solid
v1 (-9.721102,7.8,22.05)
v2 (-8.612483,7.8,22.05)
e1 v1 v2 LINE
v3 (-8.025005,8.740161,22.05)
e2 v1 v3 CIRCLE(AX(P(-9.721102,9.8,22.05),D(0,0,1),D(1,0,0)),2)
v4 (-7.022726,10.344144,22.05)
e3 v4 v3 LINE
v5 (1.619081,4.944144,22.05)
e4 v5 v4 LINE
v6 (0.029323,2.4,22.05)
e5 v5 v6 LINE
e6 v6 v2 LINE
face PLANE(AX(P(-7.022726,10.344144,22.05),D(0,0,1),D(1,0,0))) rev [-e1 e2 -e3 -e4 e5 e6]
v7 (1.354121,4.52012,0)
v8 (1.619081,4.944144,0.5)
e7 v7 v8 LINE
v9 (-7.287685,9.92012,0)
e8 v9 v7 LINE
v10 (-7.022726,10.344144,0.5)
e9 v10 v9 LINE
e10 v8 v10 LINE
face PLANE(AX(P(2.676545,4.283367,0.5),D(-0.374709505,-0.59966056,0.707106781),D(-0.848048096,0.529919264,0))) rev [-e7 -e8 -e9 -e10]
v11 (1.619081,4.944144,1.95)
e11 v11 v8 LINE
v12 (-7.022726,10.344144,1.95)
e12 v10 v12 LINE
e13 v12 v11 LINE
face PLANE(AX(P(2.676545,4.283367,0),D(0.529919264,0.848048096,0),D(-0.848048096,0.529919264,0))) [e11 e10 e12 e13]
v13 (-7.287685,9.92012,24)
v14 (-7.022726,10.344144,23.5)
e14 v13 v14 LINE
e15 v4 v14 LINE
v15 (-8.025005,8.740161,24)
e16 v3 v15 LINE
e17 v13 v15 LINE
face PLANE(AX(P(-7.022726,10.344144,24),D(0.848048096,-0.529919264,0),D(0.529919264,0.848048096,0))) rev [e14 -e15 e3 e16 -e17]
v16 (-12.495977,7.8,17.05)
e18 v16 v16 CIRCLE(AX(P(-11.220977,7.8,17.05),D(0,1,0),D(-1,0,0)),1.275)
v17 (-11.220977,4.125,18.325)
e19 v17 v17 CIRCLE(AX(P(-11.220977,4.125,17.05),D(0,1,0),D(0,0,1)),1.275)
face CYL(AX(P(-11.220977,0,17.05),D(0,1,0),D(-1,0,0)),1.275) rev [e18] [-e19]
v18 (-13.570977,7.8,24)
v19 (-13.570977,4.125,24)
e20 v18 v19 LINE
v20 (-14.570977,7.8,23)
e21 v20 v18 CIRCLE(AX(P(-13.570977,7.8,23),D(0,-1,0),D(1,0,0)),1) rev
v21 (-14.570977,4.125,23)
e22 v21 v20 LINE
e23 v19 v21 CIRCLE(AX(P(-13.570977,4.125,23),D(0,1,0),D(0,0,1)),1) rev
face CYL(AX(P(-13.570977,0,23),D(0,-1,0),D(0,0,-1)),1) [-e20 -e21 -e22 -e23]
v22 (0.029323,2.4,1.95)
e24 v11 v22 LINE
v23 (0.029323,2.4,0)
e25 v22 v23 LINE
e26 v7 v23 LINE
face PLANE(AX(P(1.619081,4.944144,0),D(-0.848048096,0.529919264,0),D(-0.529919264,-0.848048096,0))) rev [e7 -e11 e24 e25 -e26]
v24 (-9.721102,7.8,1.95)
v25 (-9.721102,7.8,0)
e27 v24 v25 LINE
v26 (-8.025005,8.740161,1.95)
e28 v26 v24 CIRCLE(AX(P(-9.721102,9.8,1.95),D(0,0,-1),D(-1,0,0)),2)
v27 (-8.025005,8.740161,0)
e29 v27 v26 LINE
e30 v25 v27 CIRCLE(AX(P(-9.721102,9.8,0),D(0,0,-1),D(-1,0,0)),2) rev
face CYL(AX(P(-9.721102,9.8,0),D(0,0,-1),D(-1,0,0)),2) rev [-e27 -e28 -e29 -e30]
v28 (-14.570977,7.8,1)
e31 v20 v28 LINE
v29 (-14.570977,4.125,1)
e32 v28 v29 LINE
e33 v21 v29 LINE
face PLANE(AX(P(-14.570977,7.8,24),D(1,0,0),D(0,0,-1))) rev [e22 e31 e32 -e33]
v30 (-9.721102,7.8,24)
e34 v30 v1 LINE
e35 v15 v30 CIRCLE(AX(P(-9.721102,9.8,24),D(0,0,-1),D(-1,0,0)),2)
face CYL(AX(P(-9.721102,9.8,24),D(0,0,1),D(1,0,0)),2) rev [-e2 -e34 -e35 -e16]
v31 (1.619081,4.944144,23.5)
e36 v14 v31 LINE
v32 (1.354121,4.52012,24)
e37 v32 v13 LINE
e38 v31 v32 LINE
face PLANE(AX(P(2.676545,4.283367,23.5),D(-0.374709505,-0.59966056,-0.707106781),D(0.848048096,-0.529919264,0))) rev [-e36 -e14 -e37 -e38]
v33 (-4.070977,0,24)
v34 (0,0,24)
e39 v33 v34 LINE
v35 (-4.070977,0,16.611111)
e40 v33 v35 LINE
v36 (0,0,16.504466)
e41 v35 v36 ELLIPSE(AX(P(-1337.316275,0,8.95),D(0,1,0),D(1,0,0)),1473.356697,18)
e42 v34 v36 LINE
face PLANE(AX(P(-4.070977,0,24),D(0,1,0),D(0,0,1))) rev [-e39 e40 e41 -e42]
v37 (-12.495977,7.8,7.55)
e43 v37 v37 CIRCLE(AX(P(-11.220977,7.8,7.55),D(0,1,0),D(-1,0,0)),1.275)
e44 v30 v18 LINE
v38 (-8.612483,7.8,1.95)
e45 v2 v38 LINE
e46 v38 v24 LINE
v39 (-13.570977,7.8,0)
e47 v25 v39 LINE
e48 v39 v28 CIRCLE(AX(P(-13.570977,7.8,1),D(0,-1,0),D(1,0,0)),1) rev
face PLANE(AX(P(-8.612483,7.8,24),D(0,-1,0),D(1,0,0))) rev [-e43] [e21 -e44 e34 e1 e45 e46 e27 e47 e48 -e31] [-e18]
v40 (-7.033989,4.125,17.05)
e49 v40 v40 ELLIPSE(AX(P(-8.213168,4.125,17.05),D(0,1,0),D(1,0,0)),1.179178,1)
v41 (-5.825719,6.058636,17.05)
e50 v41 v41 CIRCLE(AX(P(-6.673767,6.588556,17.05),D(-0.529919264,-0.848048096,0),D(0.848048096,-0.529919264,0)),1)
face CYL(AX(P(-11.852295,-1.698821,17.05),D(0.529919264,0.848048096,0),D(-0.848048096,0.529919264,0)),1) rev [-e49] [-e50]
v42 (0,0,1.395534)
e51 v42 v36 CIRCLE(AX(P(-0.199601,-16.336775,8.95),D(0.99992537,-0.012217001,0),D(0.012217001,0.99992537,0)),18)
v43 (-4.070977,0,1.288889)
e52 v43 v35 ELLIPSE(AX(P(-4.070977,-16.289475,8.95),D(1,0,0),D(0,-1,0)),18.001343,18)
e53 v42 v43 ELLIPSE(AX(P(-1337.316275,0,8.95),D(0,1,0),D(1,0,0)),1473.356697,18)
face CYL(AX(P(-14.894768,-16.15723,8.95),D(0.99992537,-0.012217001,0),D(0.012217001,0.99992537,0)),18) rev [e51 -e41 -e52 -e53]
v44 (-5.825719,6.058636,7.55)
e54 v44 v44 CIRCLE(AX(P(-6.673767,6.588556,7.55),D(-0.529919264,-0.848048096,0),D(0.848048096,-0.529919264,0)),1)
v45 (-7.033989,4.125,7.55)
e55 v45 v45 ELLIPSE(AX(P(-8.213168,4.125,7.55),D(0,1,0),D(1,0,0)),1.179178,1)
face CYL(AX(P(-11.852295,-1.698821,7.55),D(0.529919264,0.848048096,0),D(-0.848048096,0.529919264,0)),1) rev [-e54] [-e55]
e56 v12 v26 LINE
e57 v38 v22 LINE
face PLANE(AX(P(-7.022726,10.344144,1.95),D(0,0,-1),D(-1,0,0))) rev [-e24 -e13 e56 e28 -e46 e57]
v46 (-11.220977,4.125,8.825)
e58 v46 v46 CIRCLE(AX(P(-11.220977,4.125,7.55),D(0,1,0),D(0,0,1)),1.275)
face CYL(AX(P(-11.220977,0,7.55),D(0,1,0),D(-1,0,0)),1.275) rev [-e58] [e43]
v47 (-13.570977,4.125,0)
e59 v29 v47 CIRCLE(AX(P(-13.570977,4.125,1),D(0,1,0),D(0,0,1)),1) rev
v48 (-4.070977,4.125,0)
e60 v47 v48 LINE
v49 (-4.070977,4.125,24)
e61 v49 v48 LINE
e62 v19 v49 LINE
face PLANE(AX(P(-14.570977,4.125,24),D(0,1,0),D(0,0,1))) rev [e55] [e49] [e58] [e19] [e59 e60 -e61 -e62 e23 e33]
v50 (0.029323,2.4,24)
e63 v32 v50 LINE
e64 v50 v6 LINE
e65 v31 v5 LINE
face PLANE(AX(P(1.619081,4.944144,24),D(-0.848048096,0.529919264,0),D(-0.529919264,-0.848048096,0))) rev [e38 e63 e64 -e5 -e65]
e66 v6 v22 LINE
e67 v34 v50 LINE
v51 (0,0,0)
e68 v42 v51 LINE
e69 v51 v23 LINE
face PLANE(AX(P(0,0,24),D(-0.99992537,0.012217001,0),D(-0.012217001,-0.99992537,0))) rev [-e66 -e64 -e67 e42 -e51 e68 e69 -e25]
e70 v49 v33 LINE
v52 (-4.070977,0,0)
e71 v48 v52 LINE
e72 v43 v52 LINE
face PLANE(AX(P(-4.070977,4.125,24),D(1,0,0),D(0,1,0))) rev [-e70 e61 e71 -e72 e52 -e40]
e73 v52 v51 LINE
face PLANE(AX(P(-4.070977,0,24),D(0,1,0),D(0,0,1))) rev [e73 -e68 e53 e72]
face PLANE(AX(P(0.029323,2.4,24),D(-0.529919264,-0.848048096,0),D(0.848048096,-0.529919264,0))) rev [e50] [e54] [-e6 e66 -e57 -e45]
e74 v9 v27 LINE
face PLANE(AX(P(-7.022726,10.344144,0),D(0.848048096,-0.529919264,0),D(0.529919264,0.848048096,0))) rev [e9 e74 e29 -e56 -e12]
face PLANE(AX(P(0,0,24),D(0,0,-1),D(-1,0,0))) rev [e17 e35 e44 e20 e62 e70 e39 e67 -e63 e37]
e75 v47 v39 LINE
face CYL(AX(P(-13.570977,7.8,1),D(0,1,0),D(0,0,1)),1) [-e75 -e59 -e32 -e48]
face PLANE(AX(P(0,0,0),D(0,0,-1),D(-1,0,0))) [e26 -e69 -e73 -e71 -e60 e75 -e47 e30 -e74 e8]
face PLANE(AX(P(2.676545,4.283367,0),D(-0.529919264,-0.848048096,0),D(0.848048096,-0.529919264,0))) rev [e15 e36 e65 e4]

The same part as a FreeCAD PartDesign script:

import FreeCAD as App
import Part
import Sketcher
from FreeCAD import Vector
Q = App.Units.Quantity


def edges_at(feature, points):
    """Names of the edges that pass closest to the given points."""
    edges = feature.Shape.Edges
    near = lambda p: min(range(len(edges)), key=lambda i: edges[i].distToShape(Part.Vertex(*p))[0])
    return sorted({f"Edge{near(p) + 1}" for p in points})

doc = App.newDocument("Part")
body = doc.addObject("PartDesign::Body", "Body")

# Sketch on XY plane
sketch1 = body.newObject("Sketcher::SketchObject", "Sketch")
sketch1.AttachmentSupport = (doc.getObject("XY_Plane"), [""])
sketch1.MapMode = "FlatFace"
sketch1.addGeometry([
    Part.LineSegment(Vector(-14.6, 4.1, 0), Vector(-4.1, 4.1, 0)),  # 0
    Part.LineSegment(Vector(-4.1, 4.1, 0), Vector(-4.1, 0, 0)),  # 1
    Part.LineSegment(Vector(-4.1, 0, 0), Vector(0, 0, 0)),  # 2
    Part.LineSegment(Vector(0, 0, 0), Vector(0, 2.4, 0)),  # 3
    Part.LineSegment(Vector(0, 2.4, 0), Vector(-8.6, 7.8, 0)),  # 4
    Part.LineSegment(Vector(-8.6, 7.8, 0), Vector(-14.6, 7.8, 0)),  # 5
    Part.LineSegment(Vector(-14.6, 7.8, 0), Vector(-14.6, 4.1, 0)),  # 6
], False)
sketch1.addConstraint([
    Sketcher.Constraint("Coincident", 0, 2, 1, 1),
    Sketcher.Constraint("Coincident", 1, 2, 2, 1),
    Sketcher.Constraint("Coincident", 2, 2, 3, 1),
    Sketcher.Constraint("Coincident", 3, 2, 4, 1),
    Sketcher.Constraint("Coincident", 4, 2, 5, 1),
    Sketcher.Constraint("Coincident", 5, 2, 6, 1),
    Sketcher.Constraint("Coincident", 6, 2, 0, 1),
    Sketcher.Constraint("Horizontal", 0),
    Sketcher.Constraint("Vertical", 1),
    Sketcher.Constraint("Horizontal", 2),
    Sketcher.Constraint("Horizontal", 5),
    Sketcher.Constraint("Vertical", 6),
    Sketcher.Constraint("Coincident", 2, 2, -1, 1),
    Sketcher.Constraint("Angle", 4, Q("148 deg")),
    Sketcher.Constraint("DistanceX", 0, 1, 0, 2, Q("10.5 mm")),
    Sketcher.Constraint("Angle", 3, Q("89.3 deg")),
    Sketcher.Constraint("DistanceY", -1, 1, 3, 2, Q("2.4 mm")),
    Sketcher.Constraint("DistanceY", -1, 1, 4, 2, Q("7.8 mm")),
    Sketcher.Constraint("DistanceY", 1, 2, 1, 1, Q("4.125 mm")),
    Sketcher.Constraint("DistanceX", 0, 2, 3, 2, Q("4.1003 mm")),
])
pad1 = body.newObject("PartDesign::Pad", "Pad")
pad1.Profile = sketch1
pad1.Length = 24

# Sketch on an angled plane
sketch2 = body.newObject("Sketcher::SketchObject", "Sketch001")
sketch2.Placement = App.Placement(Vector(1.086787, 1.739223, 0), App.Rotation(Vector(0.848048096, -0.529919264, 0), Vector(0, 0, -0.999999999), Vector(0.529919264, 0.848048096, 0), "ZXY"))
sketch2.addGeometry([
    Part.LineSegment(Vector(-11.4, 0, 0), Vector(-11.4, -1.9, 0)),  # 0
    Part.LineSegment(Vector(-11.4, -1.9, 0), Vector(-1.2, -1.9, 0)),  # 1
    Part.LineSegment(Vector(-1.2, -1.9, 0), Vector(-1.2, 0, 0)),  # 2
    Part.LineSegment(Vector(-1.2, 0, 0), Vector(-11.4, 0, 0)),  # 3
    Part.LineSegment(Vector(-11.4, -22, 0), Vector(-11.4, -24, 0)),  # 4
    Part.LineSegment(Vector(-11.4, -24, 0), Vector(-1.2, -24, 0)),  # 5
    Part.LineSegment(Vector(-1.2, -24, 0), Vector(-1.2, -22, 0)),  # 6
    Part.LineSegment(Vector(-1.2, -22, 0), Vector(-11.4, -22, 0)),  # 7
], False)
sketch2.addConstraint([
    Sketcher.Constraint("Coincident", 0, 2, 1, 1),
    Sketcher.Constraint("Coincident", 1, 2, 2, 1),
    Sketcher.Constraint("Coincident", 2, 2, 3, 1),
    Sketcher.Constraint("Coincident", 3, 2, 0, 1),
    Sketcher.Constraint("Coincident", 4, 2, 5, 1),
    Sketcher.Constraint("Coincident", 5, 2, 6, 1),
    Sketcher.Constraint("Coincident", 6, 2, 7, 1),
    Sketcher.Constraint("Coincident", 7, 2, 4, 1),
    Sketcher.Constraint("Vertical", 0),
    Sketcher.Constraint("Horizontal", 1),
    Sketcher.Constraint("Vertical", 2),
    Sketcher.Constraint("Horizontal", 3),
    Sketcher.Constraint("Vertical", 4),
    Sketcher.Constraint("Horizontal", 5),
    Sketcher.Constraint("Vertical", 6),
    Sketcher.Constraint("Horizontal", 7),
    Sketcher.Constraint("PointOnObject", 2, 2, -1),
    Sketcher.Constraint("Vertical", 3, 2, 4, 2),
    Sketcher.Constraint("Vertical", 2, 2, 5, 2),
    Sketcher.Constraint("Equal", 2, 4),
    Sketcher.Constraint("DistanceY", 4, 2, -1, 1, Q("24 mm")),
    Sketcher.Constraint("DistanceY", 0, 2, 0, 1, Q("1.95 mm")),
    Sketcher.Constraint("DistanceX", 1, 1, 1, 2, Q("10.190232 mm")),
    Sketcher.Constraint("DistanceX", 0, 2, -1, 1, Q("11.43717 mm")),
])
pad2 = body.newObject("PartDesign::Pad", "Pad001")
pad2.Profile = sketch2
pad2.Length = 3

# Sketch on an angled plane
sketch3 = body.newObject("Sketcher::SketchObject", "Sketch002")
sketch3.Placement = App.Placement(Vector(0, 0, 0), App.Rotation(Vector(0, 0, -1), Vector(0.012217001, 0.99992537, 0), Vector(0.99992537, -0.012217001, 0), "ZXY"))
sketch3.addGeometry(Part.Circle(Vector(-9, -16, 0), Vector(0, 0, 1), 18), False)
sketch3.addConstraint([
    Sketcher.Constraint("Diameter", 0, Q("36 mm")),
    Sketcher.Constraint("DistanceX", 0, 3, -1, 1, Q("8.95 mm")),
    Sketcher.Constraint("DistanceY", 0, 3, -1, 1, Q("16.337994 mm")),
])
pocket1 = body.newObject("PartDesign::Pocket", "Pocket")
pocket1.Profile = sketch3
pocket1.Type = "ThroughAll"
doc.recompute()

chamfer = body.newObject("PartDesign::Chamfer", "Chamfer")
chamfer.Base = (pocket1, edges_at(pocket1, [(-2.702, 7.644, 0), (-2.702, 7.644, 24)]))
chamfer.Size = 0.5
doc.recompute()

fillet = body.newObject("PartDesign::Fillet", "Fillet")
fillet.Base = (chamfer, edges_at(chamfer, [(-14.571, 5.963, 24), (-14.571, 5.963, 0)]))
fillet.Radius = 1

# Sketch on XZ plane
sketch4 = body.newObject("Sketcher::SketchObject", "Sketch003")
sketch4.AttachmentSupport = (doc.getObject("XZ_Plane"), [""])
sketch4.MapMode = "FlatFace"
sketch4.AttachmentOffset = App.Placement(Vector(0, 0, -7.8), App.Rotation())
sketch4.addGeometry([
    Part.Circle(Vector(-11.2, 17.1, 0), Vector(0, 0, 1), 1.3),
    Part.Circle(Vector(-11.2, 7.5, 0), Vector(0, 0, 1), 1.3),
], False)
sketch4.addConstraint([
    Sketcher.Constraint("Equal", 0, 1),
    Sketcher.Constraint("Vertical", 0, 3, 1, 3),
    Sketcher.Constraint("Diameter", 0, Q("2.55 mm")),
    Sketcher.Constraint("DistanceY", 1, 3, 0, 3, Q("9.5 mm")),
    Sketcher.Constraint("DistanceY", -1, 1, 0, 3, Q("17.05 mm")),
    Sketcher.Constraint("DistanceX", 0, 3, -1, 1, Q("11.220977 mm")),
])
pocket2 = body.newObject("PartDesign::Pocket", "Pocket001")
pocket2.Profile = sketch4
pocket2.Type = "ThroughAll"
pocket2.Reversed = True

# Sketch on an angled plane
sketch5 = body.newObject("Sketcher::SketchObject", "Sketch004")
sketch5.Placement = App.Placement(Vector(2.676545, 4.283367, 0), App.Rotation(Vector(0.848048096, -0.529919264, 0), Vector(0, 0, -0.999999999), Vector(0.529919264, 0.848048096, 0), "ZXY"))
sketch5.addGeometry([
    Part.Circle(Vector(-9.2, -17, 0), Vector(0, 0, 1), 1),
    Part.Circle(Vector(-9.2, -7.5, 0), Vector(0, 0, 1), 1),
], False)
sketch5.addConstraint([
    Sketcher.Constraint("Equal", 0, 1),
    Sketcher.Constraint("Vertical", 0, 3, 1, 3),
    Sketcher.Constraint("Diameter", 0, Q("2 mm")),
    Sketcher.Constraint("DistanceY", 0, 3, 1, 3, Q("9.5 mm")),
    Sketcher.Constraint("DistanceY", 0, 3, -1, 1, Q("17.05 mm")),
    Sketcher.Constraint("DistanceX", 0, 3, -1, 1, Q("9.151078 mm")),
])
pocket3 = body.newObject("PartDesign::Pocket", "Pocket002")
pocket3.Profile = sketch5
pocket3.Type = "ThroughAll"
doc.recompute()

fillet2 = body.newObject("PartDesign::Fillet", "Fillet001")
fillet2.Base = (pocket3, edges_at(pocket3, [(-8.612, 7.8, 23.025), (-8.612, 7.8, 0.975)]))
fillet2.Radius = 2

doc.recompute()
